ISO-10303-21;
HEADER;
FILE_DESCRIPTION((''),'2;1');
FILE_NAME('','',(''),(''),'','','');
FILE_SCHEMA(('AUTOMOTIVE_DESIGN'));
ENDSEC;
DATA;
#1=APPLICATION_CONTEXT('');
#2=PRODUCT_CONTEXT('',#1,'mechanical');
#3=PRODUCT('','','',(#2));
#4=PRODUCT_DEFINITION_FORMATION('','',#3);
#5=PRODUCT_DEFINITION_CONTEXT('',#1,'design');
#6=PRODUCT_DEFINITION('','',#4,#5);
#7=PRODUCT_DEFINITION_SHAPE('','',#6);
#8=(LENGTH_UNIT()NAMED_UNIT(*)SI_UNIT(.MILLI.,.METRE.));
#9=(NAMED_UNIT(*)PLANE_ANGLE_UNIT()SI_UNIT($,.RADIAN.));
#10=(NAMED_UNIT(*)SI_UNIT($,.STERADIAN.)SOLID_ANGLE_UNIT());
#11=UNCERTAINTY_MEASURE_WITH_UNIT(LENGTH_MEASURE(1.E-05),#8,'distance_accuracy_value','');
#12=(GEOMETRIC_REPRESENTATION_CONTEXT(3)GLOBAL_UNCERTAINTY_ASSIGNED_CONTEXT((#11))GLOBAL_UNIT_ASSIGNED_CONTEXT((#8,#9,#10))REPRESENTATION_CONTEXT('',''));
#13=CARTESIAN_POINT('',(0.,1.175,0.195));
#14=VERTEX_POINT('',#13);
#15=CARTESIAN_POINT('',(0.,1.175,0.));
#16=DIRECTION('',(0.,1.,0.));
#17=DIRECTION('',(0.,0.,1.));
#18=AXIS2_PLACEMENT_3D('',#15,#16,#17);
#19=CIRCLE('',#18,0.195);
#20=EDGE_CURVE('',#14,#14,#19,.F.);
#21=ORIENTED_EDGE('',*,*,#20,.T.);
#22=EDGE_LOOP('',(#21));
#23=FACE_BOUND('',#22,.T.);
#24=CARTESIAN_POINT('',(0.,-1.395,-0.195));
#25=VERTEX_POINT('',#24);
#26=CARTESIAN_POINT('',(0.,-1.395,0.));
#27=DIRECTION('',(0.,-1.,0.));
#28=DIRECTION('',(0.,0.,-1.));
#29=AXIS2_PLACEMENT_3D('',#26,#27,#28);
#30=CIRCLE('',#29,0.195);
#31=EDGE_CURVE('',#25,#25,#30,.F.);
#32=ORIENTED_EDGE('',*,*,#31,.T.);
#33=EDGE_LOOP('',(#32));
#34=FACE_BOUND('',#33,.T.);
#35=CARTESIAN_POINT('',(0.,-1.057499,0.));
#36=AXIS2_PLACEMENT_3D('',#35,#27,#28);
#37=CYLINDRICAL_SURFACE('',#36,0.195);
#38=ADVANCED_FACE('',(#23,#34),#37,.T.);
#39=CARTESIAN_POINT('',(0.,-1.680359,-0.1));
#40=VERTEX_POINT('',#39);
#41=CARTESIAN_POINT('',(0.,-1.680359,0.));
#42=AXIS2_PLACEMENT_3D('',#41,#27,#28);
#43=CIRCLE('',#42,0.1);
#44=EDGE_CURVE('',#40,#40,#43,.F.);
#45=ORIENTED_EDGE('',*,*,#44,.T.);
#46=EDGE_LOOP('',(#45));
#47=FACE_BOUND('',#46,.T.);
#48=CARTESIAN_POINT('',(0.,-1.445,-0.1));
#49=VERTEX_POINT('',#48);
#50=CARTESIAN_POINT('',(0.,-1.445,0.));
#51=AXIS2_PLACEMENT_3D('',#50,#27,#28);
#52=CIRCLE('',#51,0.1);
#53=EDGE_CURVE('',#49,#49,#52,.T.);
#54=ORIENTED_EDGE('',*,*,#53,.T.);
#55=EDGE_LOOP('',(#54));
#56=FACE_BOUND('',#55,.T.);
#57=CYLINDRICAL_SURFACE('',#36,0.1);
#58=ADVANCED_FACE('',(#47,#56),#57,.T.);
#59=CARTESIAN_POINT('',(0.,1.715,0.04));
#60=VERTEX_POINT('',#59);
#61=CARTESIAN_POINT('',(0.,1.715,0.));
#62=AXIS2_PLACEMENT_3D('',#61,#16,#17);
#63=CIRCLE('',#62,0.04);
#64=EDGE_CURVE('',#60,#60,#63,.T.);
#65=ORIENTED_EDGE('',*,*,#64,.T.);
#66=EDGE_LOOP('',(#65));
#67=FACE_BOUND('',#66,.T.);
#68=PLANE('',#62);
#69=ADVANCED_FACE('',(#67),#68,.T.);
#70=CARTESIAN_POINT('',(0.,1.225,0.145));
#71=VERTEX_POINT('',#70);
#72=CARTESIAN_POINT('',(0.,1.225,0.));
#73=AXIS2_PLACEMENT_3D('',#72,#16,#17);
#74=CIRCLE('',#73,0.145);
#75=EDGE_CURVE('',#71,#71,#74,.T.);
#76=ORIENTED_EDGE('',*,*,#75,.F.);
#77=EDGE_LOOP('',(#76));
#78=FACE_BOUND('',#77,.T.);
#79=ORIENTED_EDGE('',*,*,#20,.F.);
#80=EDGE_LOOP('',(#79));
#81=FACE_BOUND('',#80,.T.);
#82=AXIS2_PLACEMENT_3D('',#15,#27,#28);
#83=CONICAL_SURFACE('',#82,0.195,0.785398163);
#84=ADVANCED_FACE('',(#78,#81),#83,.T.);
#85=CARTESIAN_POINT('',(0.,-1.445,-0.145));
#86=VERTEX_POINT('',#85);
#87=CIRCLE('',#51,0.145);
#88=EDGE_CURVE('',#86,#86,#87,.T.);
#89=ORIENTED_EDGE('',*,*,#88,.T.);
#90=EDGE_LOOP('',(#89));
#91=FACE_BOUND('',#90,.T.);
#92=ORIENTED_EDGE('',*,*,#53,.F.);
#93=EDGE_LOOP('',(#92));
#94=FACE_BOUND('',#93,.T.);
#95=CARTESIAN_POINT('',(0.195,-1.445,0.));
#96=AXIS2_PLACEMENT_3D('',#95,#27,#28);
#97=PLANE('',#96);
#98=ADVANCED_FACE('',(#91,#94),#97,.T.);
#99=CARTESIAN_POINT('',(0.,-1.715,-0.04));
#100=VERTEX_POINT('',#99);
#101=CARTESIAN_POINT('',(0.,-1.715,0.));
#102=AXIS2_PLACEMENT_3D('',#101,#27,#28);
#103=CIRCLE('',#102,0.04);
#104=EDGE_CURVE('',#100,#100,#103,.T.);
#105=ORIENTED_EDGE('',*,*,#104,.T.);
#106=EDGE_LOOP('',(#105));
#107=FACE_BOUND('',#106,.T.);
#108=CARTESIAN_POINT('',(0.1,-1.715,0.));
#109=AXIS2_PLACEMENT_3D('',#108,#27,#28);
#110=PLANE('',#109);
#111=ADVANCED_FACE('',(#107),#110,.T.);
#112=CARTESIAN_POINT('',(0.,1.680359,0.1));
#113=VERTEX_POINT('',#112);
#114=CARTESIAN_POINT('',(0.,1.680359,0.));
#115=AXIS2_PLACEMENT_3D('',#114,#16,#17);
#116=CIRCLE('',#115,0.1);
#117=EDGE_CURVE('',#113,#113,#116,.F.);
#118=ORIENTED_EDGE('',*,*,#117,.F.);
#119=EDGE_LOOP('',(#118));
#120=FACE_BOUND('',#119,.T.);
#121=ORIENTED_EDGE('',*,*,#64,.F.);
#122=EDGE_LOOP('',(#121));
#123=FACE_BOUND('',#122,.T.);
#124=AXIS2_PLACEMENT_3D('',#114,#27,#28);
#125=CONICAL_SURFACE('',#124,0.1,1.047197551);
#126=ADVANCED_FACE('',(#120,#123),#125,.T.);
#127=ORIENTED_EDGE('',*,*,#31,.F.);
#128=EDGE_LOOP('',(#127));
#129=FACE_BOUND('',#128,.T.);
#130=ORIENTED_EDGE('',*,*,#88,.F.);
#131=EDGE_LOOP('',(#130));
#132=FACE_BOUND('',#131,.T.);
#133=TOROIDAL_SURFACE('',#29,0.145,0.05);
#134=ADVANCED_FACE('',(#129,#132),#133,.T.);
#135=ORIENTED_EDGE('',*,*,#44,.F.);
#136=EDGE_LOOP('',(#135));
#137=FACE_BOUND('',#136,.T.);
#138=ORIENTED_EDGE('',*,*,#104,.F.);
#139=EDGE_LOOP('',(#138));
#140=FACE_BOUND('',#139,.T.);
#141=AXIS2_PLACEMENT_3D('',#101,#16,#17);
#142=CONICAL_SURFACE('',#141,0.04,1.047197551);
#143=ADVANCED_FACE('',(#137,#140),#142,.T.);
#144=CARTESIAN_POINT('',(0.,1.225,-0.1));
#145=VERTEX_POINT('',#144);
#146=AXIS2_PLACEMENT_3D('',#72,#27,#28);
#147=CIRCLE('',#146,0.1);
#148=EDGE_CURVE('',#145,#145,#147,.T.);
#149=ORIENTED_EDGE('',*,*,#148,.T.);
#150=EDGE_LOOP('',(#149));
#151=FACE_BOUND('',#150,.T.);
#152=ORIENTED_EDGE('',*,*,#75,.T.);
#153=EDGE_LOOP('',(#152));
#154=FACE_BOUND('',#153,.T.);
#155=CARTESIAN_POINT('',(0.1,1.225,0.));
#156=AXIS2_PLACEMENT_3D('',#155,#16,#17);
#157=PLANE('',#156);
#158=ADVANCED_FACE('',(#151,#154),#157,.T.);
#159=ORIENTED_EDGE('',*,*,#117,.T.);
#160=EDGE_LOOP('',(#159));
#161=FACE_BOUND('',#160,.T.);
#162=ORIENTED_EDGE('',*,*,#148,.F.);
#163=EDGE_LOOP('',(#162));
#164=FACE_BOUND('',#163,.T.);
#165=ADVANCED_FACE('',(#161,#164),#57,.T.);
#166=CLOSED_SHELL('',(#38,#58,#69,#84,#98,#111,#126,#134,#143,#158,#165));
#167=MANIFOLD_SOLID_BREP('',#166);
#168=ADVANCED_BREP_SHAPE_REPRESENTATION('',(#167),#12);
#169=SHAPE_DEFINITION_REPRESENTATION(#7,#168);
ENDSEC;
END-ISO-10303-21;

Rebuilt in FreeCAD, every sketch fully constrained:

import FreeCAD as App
import Part
import Sketcher
Q = App.Units.Quantity


def edges_at(feature, points):
    """Names of the edges that pass closest to the given points."""
    edges = feature.Shape.Edges
    near = lambda p: min(range(len(edges)), key=lambda i: edges[i].distToShape(Part.Vertex(*p))[0])
    return sorted({f"Edge{near(p) + 1}" for p in points})


def add_polygon(sketch, points):
    """Adds a closed chain of lines whose ends are joined by coincident constraints."""
    first, n = sketch.GeometryCount, len(points)
    for a, b in zip(points, points[1:] + points[:1]):
        sketch.addGeometry(Part.LineSegment(App.Vector(*a, 0), App.Vector(*b, 0)), False)
    for i in range(n):
        sketch.addConstraint(Sketcher.Constraint("Coincident", first + i, 2, first + (i + 1) % n, 1))

doc = App.newDocument("Part")
body = doc.addObject("PartDesign::Body", "Body")

# Sketch on XY plane
sketch1 = body.newObject("Sketcher::SketchObject", "Sketch")
sketch1.AttachmentSupport = (doc.getObject("XY_Plane"), [""])
sketch1.MapMode = "FlatFace"
add_polygon(sketch1, [(0.1, 1.715), (0, 1.715), (0, -1.715), (0.1, -1.715), (0.1, -1.445), (0.195, -1.445), (0.195, 1.225), (0.1, 1.225)])  # lines 0-7
sketch1.addConstraint([
    Sketcher.Constraint("Horizontal", 0),
    Sketcher.Constraint("Vertical", 1),
    Sketcher.Constraint("Horizontal", 2),
    Sketcher.Constraint("Vertical", 3),
    Sketcher.Constraint("Horizontal", 4),
    Sketcher.Constraint("Vertical", 5),
    Sketcher.Constraint("Horizontal", 6),
    Sketcher.Constraint("Vertical", 7),
    Sketcher.Constraint("Symmetric", 0, 2, 1, 2, -1, 1),
    Sketcher.Constraint("Vertical", 3, 2, 6, 2),
    Sketcher.Constraint("DistanceX", 0, 2, 0, 1, Q("0.1 mm")),
    Sketcher.Constraint("DistanceY", 1, 2, 1, 1, Q("3.43 mm")),
    Sketcher.Constraint("DistanceY", 3, 1, 3, 2, Q("0.27 mm")),
    Sketcher.Constraint("DistanceY", 5, 1, 5, 2, Q("2.67 mm")),
    Sketcher.Constraint("DistanceX", 4, 1, 4, 2, Q("0.095 mm")),
])
revolution = body.newObject("PartDesign::Revolution", "Revolution")
revolution.Profile = sketch1
revolution.ReferenceAxis = (sketch1, ["V_Axis"])
revolution.Angle = 360
doc.recompute()

chamfer = body.newObject("PartDesign::Chamfer", "Chamfer")
chamfer.Base = (revolution, edges_at(revolution, [(0, 1.715, 0.1)]))
chamfer.ChamferType = "Two distances"
chamfer.Size = 0.06
chamfer.Size2 = 0.034641
doc.recompute()

chamfer2 = body.newObject("PartDesign::Chamfer", "Chamfer001")
chamfer2.Base = (chamfer, edges_at(chamfer, [(0, -1.715, 0.1)]))
chamfer2.ChamferType = "Two distances"
chamfer2.Size = 0.06
chamfer2.Size2 = 0.034641
chamfer2.FlipDirection = True
doc.recompute()

chamfer3 = body.newObject("PartDesign::Chamfer", "Chamfer002")
chamfer3.Base = (chamfer2, edges_at(chamfer2, [(0, 1.225, 0.195)]))
chamfer3.Size = 0.05
doc.recompute()

fillet = body.newObject("PartDesign::Fillet", "Fillet")
fillet.Base = (chamfer3, edges_at(chamfer3, [(0, -1.445, 0.195)]))
fillet.Radius = 0.05

doc.recompute()
